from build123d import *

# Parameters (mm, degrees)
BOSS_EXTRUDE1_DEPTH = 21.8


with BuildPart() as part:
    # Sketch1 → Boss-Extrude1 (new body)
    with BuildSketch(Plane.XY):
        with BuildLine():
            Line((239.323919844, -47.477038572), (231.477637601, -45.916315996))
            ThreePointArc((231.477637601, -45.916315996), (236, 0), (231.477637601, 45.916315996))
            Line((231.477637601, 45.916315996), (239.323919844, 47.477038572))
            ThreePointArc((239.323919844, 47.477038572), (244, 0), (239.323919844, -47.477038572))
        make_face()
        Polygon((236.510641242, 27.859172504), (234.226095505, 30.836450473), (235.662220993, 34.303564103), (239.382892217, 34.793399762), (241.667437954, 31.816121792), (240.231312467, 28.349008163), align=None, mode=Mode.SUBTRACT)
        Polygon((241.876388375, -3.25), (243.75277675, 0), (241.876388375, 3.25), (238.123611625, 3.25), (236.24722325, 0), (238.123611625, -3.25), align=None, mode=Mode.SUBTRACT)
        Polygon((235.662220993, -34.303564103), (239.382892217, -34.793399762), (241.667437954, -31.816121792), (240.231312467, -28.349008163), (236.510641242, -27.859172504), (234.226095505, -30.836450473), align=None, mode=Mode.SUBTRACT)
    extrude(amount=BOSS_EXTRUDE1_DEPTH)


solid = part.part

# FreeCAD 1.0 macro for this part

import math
import FreeCAD as App
import Part
import Sketcher

V = App.Vector
Q = App.Units.Quantity


def add_polygon(sketch, points):
    """Adds a closed chain of lines whose ends are joined by coincident constraints."""
    first, n = sketch.GeometryCount, len(points)
    for a, b in zip(points, points[1:] + points[:1]):
        sketch.addGeometry(Part.LineSegment(App.Vector(*a, 0), App.Vector(*b, 0)), False)
    for i in range(n):
        sketch.addConstraint(Sketcher.Constraint("Coincident", first + i, 2, first + (i + 1) % n, 1))

doc = App.newDocument("Part")
body = doc.addObject("PartDesign::Body", "Body")

# Sketch on XY plane
sketch1 = body.newObject("Sketcher::SketchObject", "Sketch")
sketch1.AttachmentSupport = (doc.getObject("XY_Plane"), [""])
sketch1.MapMode = "FlatFace"
sketch1.addGeometry(Part.LineSegment(V(231.477638, -45.916316, 0), V(239.32392, -47.477039, 0)), False)  # 0
sketch1.addGeometry(Part.ArcOfCircle(Part.Circle(V(0.640729, 0, 0), V(0, 0, 1), 243.359271), math.radians(-11.25), math.radians(11.25)), False)  # 1
sketch1.addGeometry(Part.LineSegment(V(239.32392, 47.477039, 0), V(231.477638, 45.916316, 0)), False)  # 2
sketch1.addGeometry(Part.ArcOfCircle(Part.Circle(V(0.640729, 0, 0), V(0, 0, 1), 235.359271), math.radians(-11.25), math.radians(11.25)), False)  # 3
add_polygon(sketch1, [(235.662221, -34.303564), (234.226096, -30.83645), (236.510641, -27.859173), (240.231312, -28.349008), (241.667438, -31.816122), (239.382892, -34.7934)])  # lines 4-9
add_polygon(sketch1, [(241.876388, -3.25), (238.123612, -3.25), (236.247223, 0), (238.123612, 3.25), (241.876388, 3.25), (243.752777, 0)])  # lines 10-15
add_polygon(sketch1, [(236.510641, 27.859173), (234.226096, 30.83645), (235.662221, 34.303564), (239.382892, 34.7934), (241.667438, 31.816122), (240.231312, 28.349008)])  # lines 16-21
sketch1.addConstraint([
    Sketcher.Constraint("Coincident", 0, 2, 1, 1),
    Sketcher.Constraint("Coincident", 1, 2, 2, 1),
    Sketcher.Constraint("Coincident", 2, 2, 3, 2),
    Sketcher.Constraint("Coincident", 3, 1, 0, 1),
    Sketcher.Constraint("Horizontal", 10),
    Sketcher.Constraint("Horizontal", 13),
    Sketcher.Constraint("Coincident", 3, 3, 1, 3),
    Sketcher.Constraint("Symmetric", 0, 2, 1, 2, -1),
    Sketcher.Constraint("Symmetric", 10, 2, 12, 2, -1),
    Sketcher.Constraint("Symmetric", 4, 2, 16, 2, -1),
    Sketcher.Constraint("Symmetric", 9, 2, 17, 2, -1),
    Sketcher.Constraint("Symmetric", 8, 2, 18, 2, -1),
    Sketcher.Constraint("Symmetric", 7, 2, 19, 2, -1),
    Sketcher.Constraint("Symmetric", 6, 2, 20, 2, -1),
    Sketcher.Constraint("Symmetric", 5, 2, 21, 2, -1),
    Sketcher.Constraint("PointOnObject", 11, 2, -1),
    Sketcher.Constraint("PointOnObject", 14, 2, -1),
    Sketcher.Constraint("Parallel", 4, 7),
    Sketcher.Constraint("Parallel", 5, 8),
    Sketcher.Constraint("Parallel", 6, 9),
    Sketcher.Constraint("Parallel", 11, 14),
    Sketcher.Constraint("Parallel", 12, 15),
    Sketcher.Constraint("Vertical", 2, 2, 3, 1),
    Sketcher.Constraint("Equal", 4, 5),
    Sketcher.Constraint("Equal", 5, 6),
    Sketcher.Constraint("Equal", 6, 7),
    Sketcher.Constraint("Equal", 9, 11),
    Sketcher.Constraint("Angle", 11, Q("120 deg")),
    Sketcher.Constraint("Distance", 0, 8.0),
    Sketcher.Constraint("Angle", 4, Q("112.5 deg")),
    Sketcher.Constraint("Angle", 5, Q("52.5 deg")),
    Sketcher.Constraint("Angle", 6, Q("-7.5 deg")),
    Sketcher.Constraint("Angle", 0, Q("-11.25 deg")),
    Sketcher.Constraint("DistanceY", 10, 2, 12, 2, 6.5),
    Sketcher.Constraint("Radius", 1, 243.359271),
    Sketcher.Constraint("DistanceY", 8, 2, -1, 1, 34.7934),
    Sketcher.Constraint("DistanceX", 3, 1, 7, 2, 10.1898),
    Sketcher.Constraint("DistanceX", 10, 2, 6, 2, 2.107701),
    Sketcher.Constraint("DistanceX", 10, 2, 10, 1, 3.752777),
    Sketcher.Constraint("DistanceX", -1, 1, 1, 3, 0.640729),
    Sketcher.Constraint("DistanceX", -1, 1, 0, 2, 239.32392),
])
pad1 = body.newObject("PartDesign::Pad", "Pad")
pad1.Profile = sketch1
pad1.Length = 21.8

doc.recompute()
